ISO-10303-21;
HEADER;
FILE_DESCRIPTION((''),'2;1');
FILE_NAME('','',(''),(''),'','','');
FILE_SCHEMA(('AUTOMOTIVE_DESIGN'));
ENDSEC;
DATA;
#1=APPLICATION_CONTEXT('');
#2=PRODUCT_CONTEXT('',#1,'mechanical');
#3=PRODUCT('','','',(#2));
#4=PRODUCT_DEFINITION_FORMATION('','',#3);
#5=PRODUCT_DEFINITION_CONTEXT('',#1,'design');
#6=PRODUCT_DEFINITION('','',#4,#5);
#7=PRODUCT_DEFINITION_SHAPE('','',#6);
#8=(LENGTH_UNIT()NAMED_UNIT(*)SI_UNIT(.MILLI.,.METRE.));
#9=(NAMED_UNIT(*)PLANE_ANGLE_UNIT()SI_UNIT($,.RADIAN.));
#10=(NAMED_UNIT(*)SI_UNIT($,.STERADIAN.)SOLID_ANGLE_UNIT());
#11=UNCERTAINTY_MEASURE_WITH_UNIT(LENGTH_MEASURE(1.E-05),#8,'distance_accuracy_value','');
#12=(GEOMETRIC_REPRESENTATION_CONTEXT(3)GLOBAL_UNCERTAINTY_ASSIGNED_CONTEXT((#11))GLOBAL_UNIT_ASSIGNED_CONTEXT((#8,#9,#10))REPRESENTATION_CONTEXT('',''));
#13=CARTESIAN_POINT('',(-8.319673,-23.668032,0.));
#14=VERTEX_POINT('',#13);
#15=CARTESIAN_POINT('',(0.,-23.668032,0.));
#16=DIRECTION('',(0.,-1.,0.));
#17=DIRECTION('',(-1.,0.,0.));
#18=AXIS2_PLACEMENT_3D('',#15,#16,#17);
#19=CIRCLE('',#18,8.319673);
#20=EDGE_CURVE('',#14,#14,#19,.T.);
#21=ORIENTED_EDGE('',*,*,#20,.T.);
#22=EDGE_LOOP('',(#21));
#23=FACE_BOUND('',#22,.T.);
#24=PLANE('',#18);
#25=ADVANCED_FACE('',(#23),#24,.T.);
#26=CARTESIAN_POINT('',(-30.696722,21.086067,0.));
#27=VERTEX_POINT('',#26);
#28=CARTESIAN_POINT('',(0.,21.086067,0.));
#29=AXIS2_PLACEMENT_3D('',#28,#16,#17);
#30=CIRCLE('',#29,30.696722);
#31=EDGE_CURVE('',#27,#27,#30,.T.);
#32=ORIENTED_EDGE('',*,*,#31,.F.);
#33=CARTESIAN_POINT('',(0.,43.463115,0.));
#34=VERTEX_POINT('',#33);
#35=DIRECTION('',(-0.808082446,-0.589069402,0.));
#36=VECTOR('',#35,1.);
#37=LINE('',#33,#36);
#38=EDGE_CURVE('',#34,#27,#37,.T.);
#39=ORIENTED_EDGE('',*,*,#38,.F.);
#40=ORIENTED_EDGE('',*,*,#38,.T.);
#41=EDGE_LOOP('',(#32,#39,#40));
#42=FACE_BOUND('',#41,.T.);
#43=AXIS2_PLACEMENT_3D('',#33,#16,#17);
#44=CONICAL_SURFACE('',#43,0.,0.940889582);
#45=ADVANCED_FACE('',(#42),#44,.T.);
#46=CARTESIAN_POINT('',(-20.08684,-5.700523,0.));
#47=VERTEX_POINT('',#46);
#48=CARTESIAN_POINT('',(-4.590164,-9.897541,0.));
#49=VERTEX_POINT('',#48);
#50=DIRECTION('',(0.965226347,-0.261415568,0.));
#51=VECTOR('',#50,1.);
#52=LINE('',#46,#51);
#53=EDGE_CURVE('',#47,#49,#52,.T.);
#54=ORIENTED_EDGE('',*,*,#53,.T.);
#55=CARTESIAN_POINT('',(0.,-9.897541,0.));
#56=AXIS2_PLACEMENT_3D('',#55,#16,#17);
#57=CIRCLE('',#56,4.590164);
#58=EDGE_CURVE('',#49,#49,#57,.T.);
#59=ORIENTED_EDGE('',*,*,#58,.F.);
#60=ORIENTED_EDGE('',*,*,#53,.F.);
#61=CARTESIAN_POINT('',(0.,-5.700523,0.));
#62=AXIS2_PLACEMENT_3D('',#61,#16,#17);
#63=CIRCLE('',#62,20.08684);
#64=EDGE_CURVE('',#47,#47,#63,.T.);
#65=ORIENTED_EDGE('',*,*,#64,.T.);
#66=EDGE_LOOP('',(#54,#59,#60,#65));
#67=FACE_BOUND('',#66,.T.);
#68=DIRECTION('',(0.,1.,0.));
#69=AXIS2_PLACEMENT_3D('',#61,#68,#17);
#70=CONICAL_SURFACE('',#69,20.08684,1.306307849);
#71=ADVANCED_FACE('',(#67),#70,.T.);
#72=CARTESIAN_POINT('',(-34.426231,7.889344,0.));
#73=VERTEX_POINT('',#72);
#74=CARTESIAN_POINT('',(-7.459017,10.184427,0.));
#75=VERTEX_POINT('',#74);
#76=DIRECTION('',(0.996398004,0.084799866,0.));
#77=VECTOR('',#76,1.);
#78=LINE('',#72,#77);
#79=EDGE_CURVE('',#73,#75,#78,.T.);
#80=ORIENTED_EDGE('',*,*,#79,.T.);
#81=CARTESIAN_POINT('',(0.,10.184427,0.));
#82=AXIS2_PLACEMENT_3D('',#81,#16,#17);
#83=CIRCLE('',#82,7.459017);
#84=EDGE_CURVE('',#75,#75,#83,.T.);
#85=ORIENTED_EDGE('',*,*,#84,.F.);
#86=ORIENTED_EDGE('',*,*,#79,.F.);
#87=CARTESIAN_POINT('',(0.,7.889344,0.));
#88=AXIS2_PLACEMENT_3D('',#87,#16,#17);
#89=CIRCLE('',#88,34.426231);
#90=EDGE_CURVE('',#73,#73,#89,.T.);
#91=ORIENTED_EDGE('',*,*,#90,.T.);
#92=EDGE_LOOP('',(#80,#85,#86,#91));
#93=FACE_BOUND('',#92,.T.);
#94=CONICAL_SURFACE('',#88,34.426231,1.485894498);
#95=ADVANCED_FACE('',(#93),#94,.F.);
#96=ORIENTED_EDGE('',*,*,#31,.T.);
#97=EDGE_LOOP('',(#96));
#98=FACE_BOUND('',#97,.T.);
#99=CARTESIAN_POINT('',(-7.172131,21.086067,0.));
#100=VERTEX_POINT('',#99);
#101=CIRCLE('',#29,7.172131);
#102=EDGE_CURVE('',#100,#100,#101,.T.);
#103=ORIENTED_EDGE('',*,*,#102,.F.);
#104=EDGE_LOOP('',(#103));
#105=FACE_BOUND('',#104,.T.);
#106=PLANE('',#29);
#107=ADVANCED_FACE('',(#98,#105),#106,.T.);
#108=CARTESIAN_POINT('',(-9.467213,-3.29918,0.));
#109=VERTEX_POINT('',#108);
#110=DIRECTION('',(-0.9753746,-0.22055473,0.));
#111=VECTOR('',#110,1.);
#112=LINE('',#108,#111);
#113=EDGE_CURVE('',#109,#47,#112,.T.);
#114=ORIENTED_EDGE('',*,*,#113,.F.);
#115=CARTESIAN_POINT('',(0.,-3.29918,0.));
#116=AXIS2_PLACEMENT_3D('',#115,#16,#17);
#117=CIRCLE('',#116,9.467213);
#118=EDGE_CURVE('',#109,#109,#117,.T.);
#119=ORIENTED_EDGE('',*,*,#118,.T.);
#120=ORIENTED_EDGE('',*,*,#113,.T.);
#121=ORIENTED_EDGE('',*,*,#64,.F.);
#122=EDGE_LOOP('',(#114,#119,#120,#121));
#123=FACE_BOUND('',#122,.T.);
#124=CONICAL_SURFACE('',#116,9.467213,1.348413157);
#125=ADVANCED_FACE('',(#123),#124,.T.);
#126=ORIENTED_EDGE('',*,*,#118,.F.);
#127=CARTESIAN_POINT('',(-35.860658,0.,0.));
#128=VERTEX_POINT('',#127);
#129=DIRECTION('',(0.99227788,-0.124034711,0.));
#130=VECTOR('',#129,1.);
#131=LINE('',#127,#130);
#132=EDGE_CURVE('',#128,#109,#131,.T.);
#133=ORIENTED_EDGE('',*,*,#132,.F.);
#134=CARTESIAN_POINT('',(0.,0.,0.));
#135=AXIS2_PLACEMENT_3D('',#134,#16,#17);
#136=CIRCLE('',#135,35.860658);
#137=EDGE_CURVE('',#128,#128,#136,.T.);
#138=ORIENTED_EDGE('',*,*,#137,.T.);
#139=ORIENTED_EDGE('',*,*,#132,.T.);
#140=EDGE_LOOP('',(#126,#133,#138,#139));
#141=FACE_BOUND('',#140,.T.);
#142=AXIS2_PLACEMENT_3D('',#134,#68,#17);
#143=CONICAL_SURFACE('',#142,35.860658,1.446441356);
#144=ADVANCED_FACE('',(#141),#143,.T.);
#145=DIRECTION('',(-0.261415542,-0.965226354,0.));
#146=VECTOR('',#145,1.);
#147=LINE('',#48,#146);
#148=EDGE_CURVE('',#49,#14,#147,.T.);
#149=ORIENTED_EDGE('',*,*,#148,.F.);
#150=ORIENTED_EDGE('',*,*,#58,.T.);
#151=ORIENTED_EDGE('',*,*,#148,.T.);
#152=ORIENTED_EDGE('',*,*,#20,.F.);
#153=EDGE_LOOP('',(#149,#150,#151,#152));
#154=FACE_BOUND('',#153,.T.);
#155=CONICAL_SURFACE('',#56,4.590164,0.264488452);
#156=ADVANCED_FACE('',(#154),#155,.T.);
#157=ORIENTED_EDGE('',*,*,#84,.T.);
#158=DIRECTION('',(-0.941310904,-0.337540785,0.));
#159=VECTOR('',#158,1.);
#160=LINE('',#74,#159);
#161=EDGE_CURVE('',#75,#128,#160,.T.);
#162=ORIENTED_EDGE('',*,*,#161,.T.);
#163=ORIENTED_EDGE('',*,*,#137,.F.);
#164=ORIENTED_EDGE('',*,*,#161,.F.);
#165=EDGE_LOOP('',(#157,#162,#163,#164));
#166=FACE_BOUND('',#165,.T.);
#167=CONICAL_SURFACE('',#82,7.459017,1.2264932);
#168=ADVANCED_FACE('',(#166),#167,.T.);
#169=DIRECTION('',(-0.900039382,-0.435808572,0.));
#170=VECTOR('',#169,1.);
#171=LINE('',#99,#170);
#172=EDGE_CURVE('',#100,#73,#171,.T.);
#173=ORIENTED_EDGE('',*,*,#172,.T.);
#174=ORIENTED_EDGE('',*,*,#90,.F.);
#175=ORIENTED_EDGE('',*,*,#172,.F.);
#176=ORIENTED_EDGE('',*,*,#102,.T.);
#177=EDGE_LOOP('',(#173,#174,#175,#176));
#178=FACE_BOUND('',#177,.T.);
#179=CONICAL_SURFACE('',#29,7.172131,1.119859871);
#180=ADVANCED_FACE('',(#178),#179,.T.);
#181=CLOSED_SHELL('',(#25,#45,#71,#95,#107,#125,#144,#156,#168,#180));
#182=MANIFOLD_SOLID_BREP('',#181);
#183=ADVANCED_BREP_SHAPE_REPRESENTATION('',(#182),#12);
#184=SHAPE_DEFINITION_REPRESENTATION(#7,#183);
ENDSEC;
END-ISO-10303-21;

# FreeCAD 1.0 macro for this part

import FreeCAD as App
import Part
import Sketcher
from FreeCAD import Vector
Q = App.Units.Quantity


def add_polygon(sketch, points):
    """Adds a closed chain of lines whose ends are joined by coincident constraints."""
    first, n = sketch.GeometryCount, len(points)
    for a, b in zip(points, points[1:] + points[:1]):
        sketch.addGeometry(Part.LineSegment(App.Vector(*a, 0), App.Vector(*b, 0)), False)
    for i in range(n):
        sketch.addConstraint(Sketcher.Constraint("Coincident", first + i, 2, first + (i + 1) % n, 1))

doc = App.newDocument("Part")
body = doc.addObject("PartDesign::Body", "Body")

# Sketch on XY plane
sketch1 = body.newObject("Sketcher::SketchObject", "Sketch")
sketch1.AttachmentSupport = (doc.getObject("XY_Plane"), [""])
sketch1.MapMode = "FlatFace"
add_polygon(sketch1, [(-4.590164, -9.897541), (-8.319673, -23.668032), (0, -23.668032), (0, 43.463115), (-30.696722, 21.086067), (-7.172131, 21.086067), (-34.426231, 7.889344), (-7.459017, 10.184427), (-35.860658, 0), (-9.467213, -3.29918), (-20.08684, -5.700523)])  # lines 0-10
sketch1.addConstraint([
    Sketcher.Constraint("Horizontal", 1),
    Sketcher.Constraint("Vertical", 2),
    Sketcher.Constraint("Horizontal", 4),
    Sketcher.Constraint("PointOnObject", 1, 2, -2),
    Sketcher.Constraint("PointOnObject", 7, 2, -1),
    Sketcher.Constraint("Perpendicular", 0, 10),
    Sketcher.Constraint("Distance", 6, Q("27.064701 mm")),
    Sketcher.Constraint("DistanceX", 4, 1, 4, 2, Q("23.524591 mm")),
    Sketcher.Constraint("DistanceY", 0, 2, 3, 2, Q("44.754099 mm")),
    Sketcher.Constraint("DistanceX", 5, 2, 4, 2, Q("27.2541 mm")),
    Sketcher.Constraint("Distance", 5, Q("30.281008 mm")),
    Sketcher.Constraint("Distance", 9, Q("10.887742 mm")),
    Sketcher.Constraint("DistanceX", 1, 1, 1, 2, Q("8.319673 mm")),
    Sketcher.Constraint("DistanceY", 2, 1, 2, 2, Q("67.131147 mm")),
    Sketcher.Constraint("DistanceY", 0, 2, -1, 1, Q("23.668032 mm")),
    Sketcher.Constraint("DistanceX", 4, 2, -1, 1, Q("7.172131 mm")),
    Sketcher.Constraint("DistanceY", 8, 2, -1, 1, Q("3.29918 mm")),
    Sketcher.Constraint("DistanceX", 9, 2, -1, 1, Q("20.08684 mm")),
    Sketcher.Constraint("DistanceY", 10, 2, -1, 1, Q("9.897541 mm")),
    Sketcher.Constraint("DistanceY", 6, 2, 4, 2, Q("10.90164 mm")),
    Sketcher.Constraint("DistanceX", 7, 2, 6, 2, Q("28.401641 mm")),
    Sketcher.Constraint("DistanceX", 8, 2, 0, 2, Q("1.14754 mm")),
])
revolution = body.newObject("PartDesign::Revolution", "Revolution")
revolution.Profile = sketch1
revolution.ReferenceAxis = (sketch1, ["V_Axis"])
revolution.Angle = 360

doc.recompute()
